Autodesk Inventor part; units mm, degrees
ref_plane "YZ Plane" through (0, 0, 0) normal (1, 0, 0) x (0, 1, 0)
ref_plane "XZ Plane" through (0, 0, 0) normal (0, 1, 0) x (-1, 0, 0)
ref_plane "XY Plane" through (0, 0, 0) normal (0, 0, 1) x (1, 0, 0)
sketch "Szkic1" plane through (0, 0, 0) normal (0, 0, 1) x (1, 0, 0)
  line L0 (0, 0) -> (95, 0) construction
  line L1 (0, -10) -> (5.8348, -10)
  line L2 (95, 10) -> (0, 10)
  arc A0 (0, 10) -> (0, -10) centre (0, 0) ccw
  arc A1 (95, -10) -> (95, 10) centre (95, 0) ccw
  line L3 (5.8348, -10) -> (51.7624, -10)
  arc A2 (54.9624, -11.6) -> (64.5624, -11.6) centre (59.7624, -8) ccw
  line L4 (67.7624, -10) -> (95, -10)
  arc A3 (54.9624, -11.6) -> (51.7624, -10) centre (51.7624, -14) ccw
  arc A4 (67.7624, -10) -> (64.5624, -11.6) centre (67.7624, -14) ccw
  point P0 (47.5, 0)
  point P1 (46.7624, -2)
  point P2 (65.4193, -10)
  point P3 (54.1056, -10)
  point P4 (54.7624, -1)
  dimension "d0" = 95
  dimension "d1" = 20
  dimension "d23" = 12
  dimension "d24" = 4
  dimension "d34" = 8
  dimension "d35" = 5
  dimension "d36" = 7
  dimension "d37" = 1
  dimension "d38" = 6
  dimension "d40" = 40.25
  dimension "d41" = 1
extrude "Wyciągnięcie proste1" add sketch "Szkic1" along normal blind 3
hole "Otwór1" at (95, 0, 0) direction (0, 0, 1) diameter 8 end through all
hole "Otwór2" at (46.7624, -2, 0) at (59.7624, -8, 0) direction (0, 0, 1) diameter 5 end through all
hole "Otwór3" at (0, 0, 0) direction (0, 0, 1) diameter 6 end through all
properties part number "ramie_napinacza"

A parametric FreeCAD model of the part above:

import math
import FreeCAD as App
import Part
import Sketcher

doc = App.newDocument("Part")
body = doc.addObject("PartDesign::Body", "Body")

# Sketch on XY plane
sketch1 = body.newObject("Sketcher::SketchObject", "Sketch")
sketch1.AttachmentSupport = (doc.getObject("XY_Plane"), [""])
sketch1.MapMode = "FlatFace"
sketch1.addGeometry(Part.ArcOfCircle(Part.Circle(App.Vector(0, 0, 0), App.Vector(0, 0, 1), 10), math.radians(90), math.radians(270)), False)
sketch1.addGeometry(Part.LineSegment(App.Vector(0, -10, 0), App.Vector(51.8, -10, 0)), False)
sketch1.addGeometry(Part.ArcOfCircle(Part.Circle(App.Vector(51.8, -14, 0), App.Vector(0, 0, 1), 4), math.radians(37), math.radians(90)), False)
sketch1.addGeometry(Part.ArcOfCircle(Part.Circle(App.Vector(59.8, -8, 0), App.Vector(0, 0, 1), 6), math.radians(-143), math.radians(-37)), False)
sketch1.addGeometry(Part.ArcOfCircle(Part.Circle(App.Vector(67.8, -14, 0), App.Vector(0, 0, 1), 4), math.radians(90), math.radians(143)), False)
sketch1.addGeometry(Part.LineSegment(App.Vector(67.8, -10, 0), App.Vector(95, -10, 0)), False)
sketch1.addGeometry(Part.ArcOfCircle(Part.Circle(App.Vector(95, 0, 0), App.Vector(0, 0, 1), 10), math.radians(-90), math.radians(90)), False)
sketch1.addGeometry(Part.LineSegment(App.Vector(95, 10, 0), App.Vector(0, 10, 0)), False)
sketch1.addConstraint(Sketcher.Constraint("Tangent", 0, 2, 1, 1))
sketch1.addConstraint(Sketcher.Constraint("Tangent", 1, 2, 2, 2))
sketch1.addConstraint(Sketcher.Constraint("Tangent", 2, 1, 3, 1))
sketch1.addConstraint(Sketcher.Constraint("Tangent", 3, 2, 4, 2))
sketch1.addConstraint(Sketcher.Constraint("Tangent", 4, 1, 5, 1))
sketch1.addConstraint(Sketcher.Constraint("Tangent", 5, 2, 6, 1))
sketch1.addConstraint(Sketcher.Constraint("Tangent", 6, 2, 7, 1))
sketch1.addConstraint(Sketcher.Constraint("Tangent", 7, 2, 0, 1))
sketch1.addConstraint(Sketcher.Constraint("Horizontal", 1))
sketch1.addConstraint(Sketcher.Constraint("Horizontal", 5))
sketch1.addConstraint(Sketcher.Constraint("Horizontal", 7))
sketch1.addConstraint(Sketcher.Constraint("Coincident", 0, 3, -1, 1))
sketch1.addConstraint(Sketcher.Constraint("Equal", 2, 4))
sketch1.addConstraint(Sketcher.Constraint("Equal", 0, 6))
sketch1.addConstraint(Sketcher.Constraint("Radius", 0, 10.0))
sketch1.addConstraint(Sketcher.Constraint("Radius", 2, 4.0))
sketch1.addConstraint(Sketcher.Constraint("Radius", 3, 6.0))
sketch1.addConstraint(Sketcher.Constraint("DistanceX", 7, 2, 7, 1, 95.0))
sketch1.addConstraint(Sketcher.Constraint("DistanceY", 3, 3, -1, 1, 8.0))
sketch1.addConstraint(Sketcher.Constraint("DistanceX", 1, 1, 1, 2, 51.7624))
pad1 = body.newObject("PartDesign::Pad", "Pad")
pad1.Profile = sketch1
pad1.Length = 3

# Sketch on XY plane
sketch2 = body.newObject("Sketcher::SketchObject", "Sketch001")
sketch2.AttachmentSupport = (doc.getObject("XY_Plane"), [""])
sketch2.MapMode = "FlatFace"
sketch2.addGeometry(Part.Circle(App.Vector(95, 0, 0), App.Vector(0, 0, 1), 4), False)
sketch2.addConstraint(Sketcher.Constraint("PointOnObject", 0, 3, -1))
sketch2.addConstraint(Sketcher.Constraint("Diameter", 0, 8.0))
sketch2.addConstraint(Sketcher.Constraint("DistanceX", -1, 1, 0, 3, 95.0))
doc.recompute()
hole = body.newObject("PartDesign::Hole", "Hole")
hole.Profile = sketch2
hole.ThreadType = "None"
hole.Diameter = 8
hole.DepthType = "ThroughAll"
hole.Reversed = True

# Sketch on XY plane
sketch3 = body.newObject("Sketcher::SketchObject", "Sketch002")
sketch3.AttachmentSupport = (doc.getObject("XY_Plane"), [""])
sketch3.MapMode = "FlatFace"
sketch3.addGeometry(Part.Circle(App.Vector(46.8, -2, 0), App.Vector(0, 0, 1), 2.5), False)
sketch3.addGeometry(Part.Circle(App.Vector(59.8, -8, 0), App.Vector(0, 0, 1), 2.5), False)
sketch3.addConstraint(Sketcher.Constraint("Equal", 0, 1))
sketch3.addConstraint(Sketcher.Constraint("Diameter", 0, 5.0))
sketch3.addConstraint(Sketcher.Constraint("DistanceY", 0, 3, -1, 1, 2.0))
sketch3.addConstraint(Sketcher.Constraint("DistanceY", 1, 3, -1, 1, 8.0))
sketch3.addConstraint(Sketcher.Constraint("DistanceX", 0, 3, 1, 3, 13.0))
sketch3.addConstraint(Sketcher.Constraint("DistanceX", -1, 1, 0, 3, 46.7624))
doc.recompute()
hole2 = body.newObject("PartDesign::Hole", "Hole001")
hole2.Profile = sketch3
hole2.ThreadType = "None"
hole2.Diameter = 5
hole2.DepthType = "ThroughAll"
hole2.Reversed = True

# Sketch on XY plane
sketch4 = body.newObject("Sketcher::SketchObject", "Sketch003")
sketch4.AttachmentSupport = (doc.getObject("XY_Plane"), [""])
sketch4.MapMode = "FlatFace"
sketch4.addGeometry(Part.Circle(App.Vector(0, 0, 0), App.Vector(0, 0, 1), 3), False)
sketch4.addConstraint(Sketcher.Constraint("Coincident", 0, 3, -1, 1))
sketch4.addConstraint(Sketcher.Constraint("Diameter", 0, 6.0))
doc.recompute()
hole3 = body.newObject("PartDesign::Hole", "Hole002")
hole3.Profile = sketch4
hole3.ThreadType = "None"
hole3.Diameter = 6
hole3.DepthType = "ThroughAll"
hole3.Reversed = True

doc.recompute()
